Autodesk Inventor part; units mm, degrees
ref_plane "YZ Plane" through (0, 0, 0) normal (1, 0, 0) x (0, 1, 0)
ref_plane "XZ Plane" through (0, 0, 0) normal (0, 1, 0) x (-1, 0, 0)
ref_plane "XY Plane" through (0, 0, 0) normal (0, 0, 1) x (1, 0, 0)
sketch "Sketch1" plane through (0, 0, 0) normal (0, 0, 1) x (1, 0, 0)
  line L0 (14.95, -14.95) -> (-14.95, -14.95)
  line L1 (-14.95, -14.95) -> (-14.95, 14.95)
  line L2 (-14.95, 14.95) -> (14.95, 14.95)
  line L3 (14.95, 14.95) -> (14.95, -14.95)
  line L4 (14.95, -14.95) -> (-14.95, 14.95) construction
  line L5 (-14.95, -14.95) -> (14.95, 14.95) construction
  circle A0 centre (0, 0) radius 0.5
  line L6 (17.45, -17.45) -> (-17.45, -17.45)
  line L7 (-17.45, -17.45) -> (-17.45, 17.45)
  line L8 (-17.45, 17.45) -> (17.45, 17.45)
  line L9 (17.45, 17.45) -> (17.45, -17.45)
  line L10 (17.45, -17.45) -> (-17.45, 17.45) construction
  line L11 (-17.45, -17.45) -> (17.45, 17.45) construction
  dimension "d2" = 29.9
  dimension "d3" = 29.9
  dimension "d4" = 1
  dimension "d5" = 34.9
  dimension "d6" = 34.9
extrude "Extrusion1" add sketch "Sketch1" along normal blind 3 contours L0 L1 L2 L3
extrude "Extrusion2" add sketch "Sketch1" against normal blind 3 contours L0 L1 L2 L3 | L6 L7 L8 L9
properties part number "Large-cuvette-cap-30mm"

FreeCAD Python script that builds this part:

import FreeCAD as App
import Part
import Sketcher

V = App.Vector

doc = App.newDocument("Part")
body = doc.addObject("PartDesign::Body", "Body")

sketch1 = doc.addObject("Sketcher::SketchObject", "Sketch")
body.addObject(sketch1)
sketch1.AttachmentSupport = (doc.XY_Plane, [""])
sketch1.MapMode = "FlatFace"
sketch1.addGeometry([
    Part.LineSegment(V(-14.9, -14.9, 0), V(14.9, -14.9, 0)),
    Part.LineSegment(V(14.9, -14.9, 0), V(14.9, 14.9, 0)),
    Part.LineSegment(V(14.9, 14.9, 0), V(-14.9, 14.9, 0)),
    Part.LineSegment(V(-14.9, 14.9, 0), V(-14.9, -14.9, 0)),
    Part.Circle(V(0, 0, 0), V(0, 0, 1), 0.5),
], False)
sketch1.addConstraint([
    Sketcher.Constraint("Coincident", 0, 2, 1, 1),
    Sketcher.Constraint("Coincident", 1, 2, 2, 1),
    Sketcher.Constraint("Coincident", 2, 2, 3, 1),
    Sketcher.Constraint("Coincident", 3, 2, 0, 1),
    Sketcher.Constraint("Horizontal", 0),
    Sketcher.Constraint("Vertical", 1),
    Sketcher.Constraint("Horizontal", 2),
    Sketcher.Constraint("Vertical", 3),
    Sketcher.Constraint("Coincident", 4, 3, -1, 1),
    Sketcher.Constraint("Symmetric", 0, 2, 2, 2, -1, 1),
    Sketcher.Constraint("Equal", 2, 1),
    Sketcher.Constraint("Diameter", 4, 1.0),
    Sketcher.Constraint("DistanceX", 0, 1, 0, 2, 29.9),
])
pad1 = doc.addObject("PartDesign::Pad", "Pad")
body.addObject(pad1)
pad1.Profile = sketch1
pad1.Length = 3

sketch2 = doc.addObject("Sketcher::SketchObject", "Sketch001")
body.addObject(sketch2)
sketch2.AttachmentSupport = (doc.XY_Plane, [""])
sketch2.MapMode = "FlatFace"
sketch2.addGeometry([
    Part.LineSegment(V(-17.4, -17.4, 0), V(17.4, -17.4, 0)),
    Part.LineSegment(V(17.4, -17.4, 0), V(17.4, 17.4, 0)),
    Part.LineSegment(V(17.4, 17.4, 0), V(-17.4, 17.4, 0)),
    Part.LineSegment(V(-17.4, 17.4, 0), V(-17.4, -17.4, 0)),
    Part.Circle(V(0, 0, 0), V(0, 0, 1), 0.5),
], False)
sketch2.addConstraint([
    Sketcher.Constraint("Coincident", 0, 2, 1, 1),
    Sketcher.Constraint("Coincident", 1, 2, 2, 1),
    Sketcher.Constraint("Coincident", 2, 2, 3, 1),
    Sketcher.Constraint("Coincident", 3, 2, 0, 1),
    Sketcher.Constraint("Horizontal", 0),
    Sketcher.Constraint("Vertical", 1),
    Sketcher.Constraint("Horizontal", 2),
    Sketcher.Constraint("Vertical", 3),
    Sketcher.Constraint("Coincident", 4, 3, -1, 1),
    Sketcher.Constraint("Symmetric", 0, 2, 2, 2, -1, 1),
    Sketcher.Constraint("Equal", 2, 1),
    Sketcher.Constraint("Diameter", 4, 1.0),
    Sketcher.Constraint("DistanceX", 0, 1, 0, 2, 34.9),
])
pad2 = doc.addObject("PartDesign::Pad", "Pad001")
body.addObject(pad2)
pad2.Profile = sketch2
pad2.Length = 3
pad2.Reversed = True

doc.recompute()
